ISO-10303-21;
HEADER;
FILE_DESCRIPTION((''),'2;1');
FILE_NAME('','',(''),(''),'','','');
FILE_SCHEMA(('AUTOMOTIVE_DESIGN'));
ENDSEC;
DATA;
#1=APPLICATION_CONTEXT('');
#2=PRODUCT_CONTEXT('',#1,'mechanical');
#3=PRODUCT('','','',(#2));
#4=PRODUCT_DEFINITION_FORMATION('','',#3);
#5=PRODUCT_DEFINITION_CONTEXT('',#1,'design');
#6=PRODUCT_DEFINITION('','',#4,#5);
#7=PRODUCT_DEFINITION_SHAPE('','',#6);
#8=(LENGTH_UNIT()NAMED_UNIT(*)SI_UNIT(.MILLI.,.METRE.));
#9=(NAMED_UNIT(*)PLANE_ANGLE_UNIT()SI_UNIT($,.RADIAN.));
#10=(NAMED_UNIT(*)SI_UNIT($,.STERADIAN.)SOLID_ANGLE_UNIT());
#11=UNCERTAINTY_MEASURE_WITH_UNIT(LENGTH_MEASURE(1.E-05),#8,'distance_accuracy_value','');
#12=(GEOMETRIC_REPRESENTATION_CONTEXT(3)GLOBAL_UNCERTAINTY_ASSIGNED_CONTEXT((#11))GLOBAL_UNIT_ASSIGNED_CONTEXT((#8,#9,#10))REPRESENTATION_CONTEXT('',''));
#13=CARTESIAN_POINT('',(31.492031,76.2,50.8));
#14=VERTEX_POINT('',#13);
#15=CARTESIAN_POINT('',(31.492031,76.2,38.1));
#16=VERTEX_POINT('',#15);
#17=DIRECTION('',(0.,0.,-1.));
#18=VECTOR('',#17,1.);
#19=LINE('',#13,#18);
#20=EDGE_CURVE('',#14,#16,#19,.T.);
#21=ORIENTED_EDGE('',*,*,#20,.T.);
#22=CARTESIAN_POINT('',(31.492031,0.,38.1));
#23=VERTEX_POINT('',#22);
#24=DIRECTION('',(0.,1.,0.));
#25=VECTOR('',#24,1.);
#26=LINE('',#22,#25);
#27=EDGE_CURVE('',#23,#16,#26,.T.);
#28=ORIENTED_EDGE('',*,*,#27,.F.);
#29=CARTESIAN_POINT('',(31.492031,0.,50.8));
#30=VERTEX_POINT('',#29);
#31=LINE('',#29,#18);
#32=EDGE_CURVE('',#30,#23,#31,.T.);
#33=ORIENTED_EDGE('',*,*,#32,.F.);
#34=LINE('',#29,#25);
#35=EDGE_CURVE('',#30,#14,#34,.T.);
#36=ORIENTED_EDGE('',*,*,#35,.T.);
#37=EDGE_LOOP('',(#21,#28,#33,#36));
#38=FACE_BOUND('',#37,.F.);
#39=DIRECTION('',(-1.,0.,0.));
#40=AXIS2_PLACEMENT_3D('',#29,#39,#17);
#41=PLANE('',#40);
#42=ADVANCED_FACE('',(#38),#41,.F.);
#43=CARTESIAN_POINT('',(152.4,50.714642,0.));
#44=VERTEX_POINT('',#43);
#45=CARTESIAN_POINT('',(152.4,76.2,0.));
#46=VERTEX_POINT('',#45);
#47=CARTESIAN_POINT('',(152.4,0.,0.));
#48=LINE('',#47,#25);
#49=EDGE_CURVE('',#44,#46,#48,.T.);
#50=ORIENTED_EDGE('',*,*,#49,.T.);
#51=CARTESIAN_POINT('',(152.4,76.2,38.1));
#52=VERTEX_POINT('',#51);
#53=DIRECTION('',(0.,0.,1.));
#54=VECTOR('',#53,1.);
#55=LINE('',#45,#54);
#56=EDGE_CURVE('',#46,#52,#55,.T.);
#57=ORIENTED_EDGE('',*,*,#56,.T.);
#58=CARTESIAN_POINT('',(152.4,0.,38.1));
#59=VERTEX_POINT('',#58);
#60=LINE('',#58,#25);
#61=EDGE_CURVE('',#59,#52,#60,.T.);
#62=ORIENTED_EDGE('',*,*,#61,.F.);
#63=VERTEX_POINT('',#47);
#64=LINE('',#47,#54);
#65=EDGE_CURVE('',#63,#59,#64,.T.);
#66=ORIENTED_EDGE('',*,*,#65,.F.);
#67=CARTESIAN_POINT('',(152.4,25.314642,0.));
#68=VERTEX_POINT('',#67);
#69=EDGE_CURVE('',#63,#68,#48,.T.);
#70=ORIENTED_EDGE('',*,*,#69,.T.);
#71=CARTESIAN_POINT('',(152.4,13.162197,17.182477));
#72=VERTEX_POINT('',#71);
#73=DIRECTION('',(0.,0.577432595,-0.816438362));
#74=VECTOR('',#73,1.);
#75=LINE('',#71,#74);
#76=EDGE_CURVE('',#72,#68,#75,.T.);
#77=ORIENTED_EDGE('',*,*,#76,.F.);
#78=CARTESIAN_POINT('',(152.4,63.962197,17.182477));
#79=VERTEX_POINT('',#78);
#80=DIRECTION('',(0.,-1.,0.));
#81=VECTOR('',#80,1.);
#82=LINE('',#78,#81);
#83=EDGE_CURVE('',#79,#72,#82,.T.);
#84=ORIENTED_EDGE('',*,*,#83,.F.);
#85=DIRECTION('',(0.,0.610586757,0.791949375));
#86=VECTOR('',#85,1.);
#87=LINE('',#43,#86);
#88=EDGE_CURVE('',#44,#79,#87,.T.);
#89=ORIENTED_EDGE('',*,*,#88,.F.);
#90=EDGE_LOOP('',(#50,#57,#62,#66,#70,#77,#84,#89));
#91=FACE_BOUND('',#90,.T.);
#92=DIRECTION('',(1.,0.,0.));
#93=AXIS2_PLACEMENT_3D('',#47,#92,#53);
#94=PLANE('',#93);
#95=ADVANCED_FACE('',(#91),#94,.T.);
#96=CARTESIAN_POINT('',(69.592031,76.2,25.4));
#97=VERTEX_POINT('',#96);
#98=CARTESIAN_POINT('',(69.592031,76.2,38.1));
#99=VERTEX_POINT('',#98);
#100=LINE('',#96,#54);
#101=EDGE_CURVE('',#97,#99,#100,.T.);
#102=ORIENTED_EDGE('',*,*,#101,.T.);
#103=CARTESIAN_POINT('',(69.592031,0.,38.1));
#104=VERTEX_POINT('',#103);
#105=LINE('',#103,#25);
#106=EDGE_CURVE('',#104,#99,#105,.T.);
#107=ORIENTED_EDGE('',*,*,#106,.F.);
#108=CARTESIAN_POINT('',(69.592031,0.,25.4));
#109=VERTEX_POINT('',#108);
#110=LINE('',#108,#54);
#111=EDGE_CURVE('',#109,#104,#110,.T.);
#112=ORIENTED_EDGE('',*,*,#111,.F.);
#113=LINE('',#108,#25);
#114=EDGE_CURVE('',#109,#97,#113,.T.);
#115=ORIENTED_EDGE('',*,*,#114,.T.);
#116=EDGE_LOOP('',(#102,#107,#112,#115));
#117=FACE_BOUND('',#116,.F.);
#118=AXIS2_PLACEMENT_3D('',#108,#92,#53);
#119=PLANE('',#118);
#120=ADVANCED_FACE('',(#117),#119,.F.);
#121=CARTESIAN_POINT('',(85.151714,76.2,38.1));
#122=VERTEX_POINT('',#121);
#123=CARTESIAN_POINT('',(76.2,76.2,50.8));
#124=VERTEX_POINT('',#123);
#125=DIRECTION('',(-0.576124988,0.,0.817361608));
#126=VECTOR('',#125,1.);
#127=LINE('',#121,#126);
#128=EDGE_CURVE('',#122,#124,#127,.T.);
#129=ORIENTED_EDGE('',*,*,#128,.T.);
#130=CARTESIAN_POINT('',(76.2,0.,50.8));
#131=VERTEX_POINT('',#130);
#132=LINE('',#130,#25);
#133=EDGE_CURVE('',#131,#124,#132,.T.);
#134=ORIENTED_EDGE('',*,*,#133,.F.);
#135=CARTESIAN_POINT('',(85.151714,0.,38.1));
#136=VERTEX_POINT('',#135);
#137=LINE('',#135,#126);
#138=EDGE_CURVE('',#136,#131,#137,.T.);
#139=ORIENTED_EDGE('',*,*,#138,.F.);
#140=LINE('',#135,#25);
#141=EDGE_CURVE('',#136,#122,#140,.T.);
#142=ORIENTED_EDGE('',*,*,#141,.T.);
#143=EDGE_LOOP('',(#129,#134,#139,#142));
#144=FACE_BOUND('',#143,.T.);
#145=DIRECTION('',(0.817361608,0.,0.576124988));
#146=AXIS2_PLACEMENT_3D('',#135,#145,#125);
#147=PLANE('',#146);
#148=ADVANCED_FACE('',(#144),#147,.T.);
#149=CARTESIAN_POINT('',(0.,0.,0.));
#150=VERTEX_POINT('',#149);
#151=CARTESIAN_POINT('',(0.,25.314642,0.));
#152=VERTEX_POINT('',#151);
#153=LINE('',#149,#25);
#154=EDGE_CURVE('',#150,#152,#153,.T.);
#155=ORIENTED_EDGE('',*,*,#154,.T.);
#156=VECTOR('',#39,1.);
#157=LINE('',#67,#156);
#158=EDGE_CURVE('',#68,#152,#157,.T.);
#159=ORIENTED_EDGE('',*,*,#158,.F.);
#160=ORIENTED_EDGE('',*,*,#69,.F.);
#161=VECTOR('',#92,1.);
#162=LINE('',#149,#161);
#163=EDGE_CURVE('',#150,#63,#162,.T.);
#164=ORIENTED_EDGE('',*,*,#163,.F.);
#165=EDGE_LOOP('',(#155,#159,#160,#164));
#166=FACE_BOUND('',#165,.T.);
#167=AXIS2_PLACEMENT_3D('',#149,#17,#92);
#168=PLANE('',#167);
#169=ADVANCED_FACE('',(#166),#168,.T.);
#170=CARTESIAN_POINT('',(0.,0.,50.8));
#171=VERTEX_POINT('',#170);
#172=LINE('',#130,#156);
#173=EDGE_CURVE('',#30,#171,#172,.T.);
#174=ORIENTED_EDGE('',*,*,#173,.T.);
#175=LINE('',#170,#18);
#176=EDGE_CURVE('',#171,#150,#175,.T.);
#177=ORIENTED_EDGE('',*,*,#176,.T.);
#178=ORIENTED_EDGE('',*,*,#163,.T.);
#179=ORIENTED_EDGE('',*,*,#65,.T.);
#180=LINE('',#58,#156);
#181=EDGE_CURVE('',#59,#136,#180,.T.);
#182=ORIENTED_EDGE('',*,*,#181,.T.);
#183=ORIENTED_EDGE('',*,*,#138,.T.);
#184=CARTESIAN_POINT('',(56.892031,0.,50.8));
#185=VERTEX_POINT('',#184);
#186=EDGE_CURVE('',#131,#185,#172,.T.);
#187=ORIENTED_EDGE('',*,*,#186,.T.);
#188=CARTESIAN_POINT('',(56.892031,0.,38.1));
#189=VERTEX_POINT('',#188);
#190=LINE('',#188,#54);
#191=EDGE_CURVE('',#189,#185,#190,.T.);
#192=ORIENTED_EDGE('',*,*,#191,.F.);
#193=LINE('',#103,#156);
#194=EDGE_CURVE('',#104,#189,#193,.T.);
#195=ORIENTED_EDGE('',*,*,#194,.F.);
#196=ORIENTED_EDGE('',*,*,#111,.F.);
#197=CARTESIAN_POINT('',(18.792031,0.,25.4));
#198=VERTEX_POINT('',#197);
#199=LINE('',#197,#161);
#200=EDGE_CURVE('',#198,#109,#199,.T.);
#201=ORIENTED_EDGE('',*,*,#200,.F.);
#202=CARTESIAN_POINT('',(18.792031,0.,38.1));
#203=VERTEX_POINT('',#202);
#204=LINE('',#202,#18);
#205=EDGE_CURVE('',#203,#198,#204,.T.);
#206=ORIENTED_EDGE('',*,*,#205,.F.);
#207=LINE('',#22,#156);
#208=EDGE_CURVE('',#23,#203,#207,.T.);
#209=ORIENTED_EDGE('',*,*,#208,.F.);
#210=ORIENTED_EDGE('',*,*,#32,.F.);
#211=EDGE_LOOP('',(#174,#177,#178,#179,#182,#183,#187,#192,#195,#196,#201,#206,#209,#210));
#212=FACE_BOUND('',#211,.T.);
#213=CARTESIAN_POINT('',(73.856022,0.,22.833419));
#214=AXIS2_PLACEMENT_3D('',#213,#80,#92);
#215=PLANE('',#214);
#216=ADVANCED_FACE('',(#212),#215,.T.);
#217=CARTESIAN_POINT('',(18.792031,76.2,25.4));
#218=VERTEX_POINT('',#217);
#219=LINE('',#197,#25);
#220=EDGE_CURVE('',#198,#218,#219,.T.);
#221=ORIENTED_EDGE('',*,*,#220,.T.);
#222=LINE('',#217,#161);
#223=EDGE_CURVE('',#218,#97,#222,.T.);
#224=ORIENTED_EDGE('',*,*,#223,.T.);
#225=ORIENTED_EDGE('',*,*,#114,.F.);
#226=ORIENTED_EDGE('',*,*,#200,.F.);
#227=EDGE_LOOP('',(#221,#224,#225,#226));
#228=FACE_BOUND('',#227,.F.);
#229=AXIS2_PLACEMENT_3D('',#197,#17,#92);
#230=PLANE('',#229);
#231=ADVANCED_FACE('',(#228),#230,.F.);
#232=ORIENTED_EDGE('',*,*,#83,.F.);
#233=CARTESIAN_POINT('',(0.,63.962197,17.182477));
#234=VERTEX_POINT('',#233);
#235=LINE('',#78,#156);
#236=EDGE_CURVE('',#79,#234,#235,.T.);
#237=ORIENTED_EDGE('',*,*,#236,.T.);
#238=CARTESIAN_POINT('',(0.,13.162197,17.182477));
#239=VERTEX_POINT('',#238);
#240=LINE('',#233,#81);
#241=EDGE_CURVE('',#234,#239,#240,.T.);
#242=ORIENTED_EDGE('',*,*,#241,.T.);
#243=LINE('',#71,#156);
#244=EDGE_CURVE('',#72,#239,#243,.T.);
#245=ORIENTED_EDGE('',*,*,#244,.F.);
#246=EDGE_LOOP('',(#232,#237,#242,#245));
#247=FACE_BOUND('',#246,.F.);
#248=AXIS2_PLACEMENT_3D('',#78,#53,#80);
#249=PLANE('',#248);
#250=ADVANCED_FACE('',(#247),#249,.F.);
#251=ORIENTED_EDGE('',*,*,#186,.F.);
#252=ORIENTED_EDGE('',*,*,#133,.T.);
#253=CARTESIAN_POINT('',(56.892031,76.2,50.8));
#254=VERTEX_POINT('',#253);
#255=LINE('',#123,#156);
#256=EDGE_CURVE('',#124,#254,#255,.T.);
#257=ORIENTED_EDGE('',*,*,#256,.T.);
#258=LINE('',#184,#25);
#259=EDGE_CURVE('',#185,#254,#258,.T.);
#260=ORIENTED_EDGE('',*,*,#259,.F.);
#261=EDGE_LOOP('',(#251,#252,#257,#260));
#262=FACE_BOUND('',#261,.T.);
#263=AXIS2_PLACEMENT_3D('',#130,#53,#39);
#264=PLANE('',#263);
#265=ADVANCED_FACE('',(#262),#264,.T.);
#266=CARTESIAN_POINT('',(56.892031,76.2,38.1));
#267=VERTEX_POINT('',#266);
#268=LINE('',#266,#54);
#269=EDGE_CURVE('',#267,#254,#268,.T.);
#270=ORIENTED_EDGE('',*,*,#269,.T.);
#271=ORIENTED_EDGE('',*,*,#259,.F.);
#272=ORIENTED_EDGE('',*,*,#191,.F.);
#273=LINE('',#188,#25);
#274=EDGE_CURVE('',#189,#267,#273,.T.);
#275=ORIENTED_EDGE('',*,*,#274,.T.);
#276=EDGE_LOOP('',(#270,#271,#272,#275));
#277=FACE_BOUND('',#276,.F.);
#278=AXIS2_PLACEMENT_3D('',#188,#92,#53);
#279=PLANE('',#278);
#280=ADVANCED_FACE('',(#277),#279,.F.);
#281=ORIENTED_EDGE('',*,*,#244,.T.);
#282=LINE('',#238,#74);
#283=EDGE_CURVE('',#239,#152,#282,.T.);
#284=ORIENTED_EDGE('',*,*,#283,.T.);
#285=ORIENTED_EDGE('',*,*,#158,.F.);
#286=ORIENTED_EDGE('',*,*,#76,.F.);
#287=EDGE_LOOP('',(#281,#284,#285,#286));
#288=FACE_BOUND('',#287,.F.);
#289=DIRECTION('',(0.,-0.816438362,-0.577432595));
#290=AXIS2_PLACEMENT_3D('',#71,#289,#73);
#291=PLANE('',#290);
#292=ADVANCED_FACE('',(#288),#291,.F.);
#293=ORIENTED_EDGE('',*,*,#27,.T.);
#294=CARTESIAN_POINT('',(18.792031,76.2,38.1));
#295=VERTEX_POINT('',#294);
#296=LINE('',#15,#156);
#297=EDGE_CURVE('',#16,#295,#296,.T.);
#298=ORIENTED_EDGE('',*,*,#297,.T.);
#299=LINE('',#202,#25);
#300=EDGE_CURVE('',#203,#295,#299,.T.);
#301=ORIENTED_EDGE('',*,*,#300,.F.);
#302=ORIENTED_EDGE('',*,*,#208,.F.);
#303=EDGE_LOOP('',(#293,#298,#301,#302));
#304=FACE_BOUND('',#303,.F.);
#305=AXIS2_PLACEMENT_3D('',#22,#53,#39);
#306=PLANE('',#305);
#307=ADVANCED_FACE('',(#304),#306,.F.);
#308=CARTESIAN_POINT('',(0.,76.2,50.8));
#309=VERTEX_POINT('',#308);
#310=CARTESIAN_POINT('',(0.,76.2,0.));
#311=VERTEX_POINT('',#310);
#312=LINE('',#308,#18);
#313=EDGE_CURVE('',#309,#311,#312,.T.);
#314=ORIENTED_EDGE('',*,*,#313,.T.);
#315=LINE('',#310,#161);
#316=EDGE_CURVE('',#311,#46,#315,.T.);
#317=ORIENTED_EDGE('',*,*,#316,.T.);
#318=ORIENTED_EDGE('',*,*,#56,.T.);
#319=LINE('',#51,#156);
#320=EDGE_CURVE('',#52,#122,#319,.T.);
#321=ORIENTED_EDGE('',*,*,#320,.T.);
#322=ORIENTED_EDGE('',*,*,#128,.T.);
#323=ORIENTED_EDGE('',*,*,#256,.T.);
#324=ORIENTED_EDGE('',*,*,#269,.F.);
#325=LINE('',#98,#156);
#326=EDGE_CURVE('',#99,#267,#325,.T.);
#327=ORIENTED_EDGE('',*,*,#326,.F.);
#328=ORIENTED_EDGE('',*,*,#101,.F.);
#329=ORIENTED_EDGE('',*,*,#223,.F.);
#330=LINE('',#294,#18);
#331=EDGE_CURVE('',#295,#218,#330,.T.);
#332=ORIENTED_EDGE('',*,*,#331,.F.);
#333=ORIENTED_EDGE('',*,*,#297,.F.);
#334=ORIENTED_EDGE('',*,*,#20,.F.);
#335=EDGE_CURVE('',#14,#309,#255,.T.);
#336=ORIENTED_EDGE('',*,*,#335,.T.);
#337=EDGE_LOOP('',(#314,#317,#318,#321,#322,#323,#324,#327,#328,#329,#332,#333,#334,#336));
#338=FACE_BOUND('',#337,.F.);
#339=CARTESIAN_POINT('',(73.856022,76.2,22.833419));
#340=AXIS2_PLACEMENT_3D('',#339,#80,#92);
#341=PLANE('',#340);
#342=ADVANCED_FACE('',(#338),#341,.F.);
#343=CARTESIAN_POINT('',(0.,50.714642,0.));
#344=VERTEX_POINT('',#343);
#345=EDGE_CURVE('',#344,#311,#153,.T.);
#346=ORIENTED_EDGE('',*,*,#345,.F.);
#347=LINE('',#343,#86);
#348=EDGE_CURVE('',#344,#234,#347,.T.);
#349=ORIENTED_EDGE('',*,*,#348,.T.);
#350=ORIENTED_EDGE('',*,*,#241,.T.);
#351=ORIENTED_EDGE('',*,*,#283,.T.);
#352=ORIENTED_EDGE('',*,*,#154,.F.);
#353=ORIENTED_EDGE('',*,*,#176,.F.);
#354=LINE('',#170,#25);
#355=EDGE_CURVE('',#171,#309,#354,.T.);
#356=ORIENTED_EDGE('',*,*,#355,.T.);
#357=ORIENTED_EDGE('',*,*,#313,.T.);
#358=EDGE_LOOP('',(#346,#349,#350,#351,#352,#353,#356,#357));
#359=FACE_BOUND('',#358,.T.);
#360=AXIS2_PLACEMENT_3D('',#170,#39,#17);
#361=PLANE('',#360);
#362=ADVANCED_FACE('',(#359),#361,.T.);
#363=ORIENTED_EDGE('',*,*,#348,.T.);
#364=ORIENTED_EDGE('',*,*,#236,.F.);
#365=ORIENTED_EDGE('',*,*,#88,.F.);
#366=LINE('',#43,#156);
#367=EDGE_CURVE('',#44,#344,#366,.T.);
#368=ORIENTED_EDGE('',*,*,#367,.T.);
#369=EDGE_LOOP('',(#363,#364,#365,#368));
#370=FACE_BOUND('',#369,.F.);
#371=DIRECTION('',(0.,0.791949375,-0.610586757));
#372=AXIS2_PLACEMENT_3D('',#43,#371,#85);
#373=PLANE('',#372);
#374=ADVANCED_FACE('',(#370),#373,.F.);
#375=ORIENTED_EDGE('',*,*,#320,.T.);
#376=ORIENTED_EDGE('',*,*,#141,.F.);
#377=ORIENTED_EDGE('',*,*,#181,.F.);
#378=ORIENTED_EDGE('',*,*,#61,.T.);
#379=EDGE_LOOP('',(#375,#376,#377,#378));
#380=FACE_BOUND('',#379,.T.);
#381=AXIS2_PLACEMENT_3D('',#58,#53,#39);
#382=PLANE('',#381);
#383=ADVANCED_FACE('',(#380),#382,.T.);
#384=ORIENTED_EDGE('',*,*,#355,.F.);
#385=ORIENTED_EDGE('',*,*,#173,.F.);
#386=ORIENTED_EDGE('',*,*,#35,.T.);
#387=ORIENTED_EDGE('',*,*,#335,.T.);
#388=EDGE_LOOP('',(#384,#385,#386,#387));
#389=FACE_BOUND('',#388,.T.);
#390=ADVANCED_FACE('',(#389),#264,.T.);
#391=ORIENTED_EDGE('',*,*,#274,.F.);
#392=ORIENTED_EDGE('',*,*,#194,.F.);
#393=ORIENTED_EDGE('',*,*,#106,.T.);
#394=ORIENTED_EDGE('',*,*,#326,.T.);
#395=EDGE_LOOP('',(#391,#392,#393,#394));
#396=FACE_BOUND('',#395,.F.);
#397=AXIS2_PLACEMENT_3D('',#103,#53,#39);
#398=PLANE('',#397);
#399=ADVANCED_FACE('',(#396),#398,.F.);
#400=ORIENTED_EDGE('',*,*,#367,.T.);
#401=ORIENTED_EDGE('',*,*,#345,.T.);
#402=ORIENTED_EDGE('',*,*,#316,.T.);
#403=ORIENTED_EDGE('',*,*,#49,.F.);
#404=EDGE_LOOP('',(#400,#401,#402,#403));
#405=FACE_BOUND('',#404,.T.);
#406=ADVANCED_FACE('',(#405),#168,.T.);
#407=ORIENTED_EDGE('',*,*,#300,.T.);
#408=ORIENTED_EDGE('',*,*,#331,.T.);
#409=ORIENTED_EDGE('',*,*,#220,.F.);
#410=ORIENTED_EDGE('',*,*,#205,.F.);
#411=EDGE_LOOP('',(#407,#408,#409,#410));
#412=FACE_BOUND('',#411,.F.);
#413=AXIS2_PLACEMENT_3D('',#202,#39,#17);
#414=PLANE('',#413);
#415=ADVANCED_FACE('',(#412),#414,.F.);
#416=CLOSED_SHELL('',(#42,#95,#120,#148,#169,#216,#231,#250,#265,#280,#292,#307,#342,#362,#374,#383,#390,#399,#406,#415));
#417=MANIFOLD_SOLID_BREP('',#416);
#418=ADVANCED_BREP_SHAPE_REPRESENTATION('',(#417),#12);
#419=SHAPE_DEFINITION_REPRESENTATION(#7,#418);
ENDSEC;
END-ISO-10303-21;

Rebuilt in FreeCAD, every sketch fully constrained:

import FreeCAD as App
import Part
import Sketcher
Q = App.Units.Quantity


def add_polygon(sketch, points):
    """Adds a closed chain of lines whose ends are joined by coincident constraints."""
    first, n = sketch.GeometryCount, len(points)
    for a, b in zip(points, points[1:] + points[:1]):
        sketch.addGeometry(Part.LineSegment(App.Vector(*a, 0), App.Vector(*b, 0)), False)
    for i in range(n):
        sketch.addConstraint(Sketcher.Constraint("Coincident", first + i, 2, first + (i + 1) % n, 1))

doc = App.newDocument("Part")
body = doc.addObject("PartDesign::Body", "Body")

sketch1 = body.newObject("Sketcher::SketchObject", "Sketch")
sketch1.AttachmentSupport = (doc.getObject("XZ_Plane"), [""])
sketch1.MapMode = "FlatFace"
add_polygon(sketch1, [(0, 50.8), (0, 0), (152.4, 0), (152.4, 38.1), (85.151714, 38.1), (76.2, 50.8)])
sketch1.addConstraint([
    Sketcher.Constraint("Vertical", 0),
    Sketcher.Constraint("Horizontal", 1),
    Sketcher.Constraint("Vertical", 2),
    Sketcher.Constraint("Horizontal", 3),
    Sketcher.Constraint("Horizontal", 5),
    Sketcher.Constraint("Coincident", 0, 2, -1, 1),
    Sketcher.Constraint("DistanceX", 1, 1, 1, 2, Q("6 in")),
    Sketcher.Constraint("DistanceX", 5, 2, 5, 1, Q("3 in")),
    Sketcher.Constraint("DistanceY", 0, 2, 0, 1, Q("2 in")),
    Sketcher.Constraint("DistanceY", 2, 1, 2, 2, Q("1.5 in")),
    Sketcher.Constraint("Distance", 4, 15.537799),
])
pad1 = body.newObject("PartDesign::Pad", "Pad")
pad1.Profile = sketch1
pad1.Length = Q("3 in")
pad1.Reversed = True

sketch2 = body.newObject("Sketcher::SketchObject", "Sketch001")
sketch2.AttachmentSupport = (doc.getObject("XZ_Plane"), [""])
sketch2.MapMode = "FlatFace"
add_polygon(sketch2, [(56.892031, 50.8), (31.492031, 50.8), (31.492031, 38.1), (18.792031, 38.1), (18.792031, 25.4), (69.592031, 25.4), (69.592031, 38.1), (56.892031, 38.1)])
sketch2.addConstraint([
    Sketcher.Constraint("Horizontal", 0),
    Sketcher.Constraint("Vertical", 1),
    Sketcher.Constraint("Horizontal", 2),
    Sketcher.Constraint("Vertical", 3),
    Sketcher.Constraint("Horizontal", 4),
    Sketcher.Constraint("Vertical", 5),
    Sketcher.Constraint("Horizontal", 6),
    Sketcher.Constraint("Vertical", 7),
    Sketcher.Constraint("Horizontal", 2, 2, 5, 2),
    Sketcher.Constraint("Equal", 2, 6),
    Sketcher.Constraint("Equal", 6, 1),
    Sketcher.Constraint("Equal", 1, 3),
    Sketcher.Constraint("DistanceX", 0, 2, 0, 1, Q("1 in")),
    Sketcher.Constraint("DistanceX", 4, 1, 4, 2, Q("2 in")),
    Sketcher.Constraint("DistanceY", -1, 1, 0, 2, Q("2 in")),
    Sketcher.Constraint("DistanceX", -1, 1, 0, 2, 31.492031),
])
pocket1 = body.newObject("PartDesign::Pocket", "Pocket")
pocket1.Profile = sketch2
pocket1.Length = Q("3 in")

sketch3 = body.newObject("Sketcher::SketchObject", "Sketch002")
sketch3.AttachmentSupport = (doc.getObject("YZ_Plane"), [""])
sketch3.MapMode = "FlatFace"
sketch3.AttachmentOffset = App.Placement(App.Vector(0, 0, 6 * 25.4), App.Rotation())
add_polygon(sketch3, [(63.962197, 17.182477), (13.162197, 17.182477), (25.314642, 0), (50.714642, 0)])
sketch3.addConstraint([
    Sketcher.Constraint("Horizontal", 0),
    Sketcher.Constraint("Horizontal", 2),
    Sketcher.Constraint("PointOnObject", 1, 2, -1),
    Sketcher.Constraint("DistanceX", 0, 2, 0, 1, Q("2 in")),
    Sketcher.Constraint("DistanceX", 2, 1, 2, 2, Q("1 in")),
    Sketcher.Constraint("Distance", 1, 21.045651),
    Sketcher.Constraint("DistanceX", -1, 1, 1, 2, 25.314642),
    Sketcher.Constraint("Distance", 3, 21.696434),
])
pocket2 = body.newObject("PartDesign::Pocket", "Pocket001")
pocket2.Profile = sketch3
pocket2.Length = Q("6 in")

doc.recompute()
